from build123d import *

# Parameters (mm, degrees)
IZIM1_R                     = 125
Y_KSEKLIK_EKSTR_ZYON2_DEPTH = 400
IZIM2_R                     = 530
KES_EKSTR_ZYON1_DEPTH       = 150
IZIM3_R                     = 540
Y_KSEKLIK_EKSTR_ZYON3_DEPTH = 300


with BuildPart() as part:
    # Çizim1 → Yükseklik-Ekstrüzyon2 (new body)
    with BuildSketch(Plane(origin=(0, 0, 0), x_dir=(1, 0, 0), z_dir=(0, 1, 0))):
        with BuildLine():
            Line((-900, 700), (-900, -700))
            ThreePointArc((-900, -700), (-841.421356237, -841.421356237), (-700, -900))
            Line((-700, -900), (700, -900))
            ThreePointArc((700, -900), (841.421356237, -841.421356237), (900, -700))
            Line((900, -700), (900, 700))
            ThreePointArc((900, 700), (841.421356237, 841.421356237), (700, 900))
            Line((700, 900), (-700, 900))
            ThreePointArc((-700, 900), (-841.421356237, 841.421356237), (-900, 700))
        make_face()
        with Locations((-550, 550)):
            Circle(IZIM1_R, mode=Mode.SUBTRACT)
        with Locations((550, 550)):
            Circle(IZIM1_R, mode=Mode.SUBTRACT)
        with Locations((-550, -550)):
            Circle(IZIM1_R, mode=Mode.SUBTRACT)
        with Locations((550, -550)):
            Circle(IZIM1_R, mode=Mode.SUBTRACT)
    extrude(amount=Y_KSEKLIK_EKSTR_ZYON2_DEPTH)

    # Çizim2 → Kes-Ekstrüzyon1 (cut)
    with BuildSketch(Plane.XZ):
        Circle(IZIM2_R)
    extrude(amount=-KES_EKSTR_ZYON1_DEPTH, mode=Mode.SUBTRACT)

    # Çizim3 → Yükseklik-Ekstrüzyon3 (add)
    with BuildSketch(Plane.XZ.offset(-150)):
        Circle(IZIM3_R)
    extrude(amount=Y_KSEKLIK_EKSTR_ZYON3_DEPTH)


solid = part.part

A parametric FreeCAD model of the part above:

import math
import FreeCAD as App
import Part
import Sketcher

doc = App.newDocument("Part")
params = doc.addObject("Spreadsheet::Sheet", "Params")
for row, (alias, value) in enumerate([
    ("sketch1_diameter", "250 mm"),
    ("sketch1_radius", "200 mm"),
    ("sketch1_width", "1400 mm"),
    ("pad1_length", "400 mm"),
    ("sketch2_diameter", "1060 mm"),
    ("pocket1_length", "150 mm"),
    ("sketch3_diameter", "1080 mm"),
    ("pad2_length", "300 mm"),
], start=1):
    params.set(f"A{row}", alias)
    params.set(f"B{row}", "=" + value)
    params.setAlias(f"B{row}", alias)

body = doc.addObject("PartDesign::Body", "Body")

sketch1 = body.newObject("Sketcher::SketchObject", "Sketch")
sketch1.AttachmentSupport = (doc.getObject("XZ_Plane"), [""])
sketch1.MapMode = "FlatFace"
sketch1.addGeometry([
    Part.LineSegment(App.Vector(-900, -700, 0), App.Vector(-900, 700, 0)),
    Part.ArcOfCircle(Part.Circle(App.Vector(-700, 700, 0), App.Vector(0, 0, 1), 200), math.radians(90), math.radians(180)),
    Part.LineSegment(App.Vector(-700, 900, 0), App.Vector(700, 900, 0)),
    Part.ArcOfCircle(Part.Circle(App.Vector(700, 700, 0), App.Vector(0, 0, 1), 200), math.radians(0), math.radians(90)),
    Part.LineSegment(App.Vector(900, 700, 0), App.Vector(900, -700, 0)),
    Part.ArcOfCircle(Part.Circle(App.Vector(700, -700, 0), App.Vector(0, 0, 1), 200), math.radians(-90), math.radians(0)),
    Part.LineSegment(App.Vector(700, -900, 0), App.Vector(-700, -900, 0)),
    Part.ArcOfCircle(Part.Circle(App.Vector(-700, -700, 0), App.Vector(0, 0, 1), 200), math.radians(-180), math.radians(-90)),
    Part.Circle(App.Vector(-550, 550, 0), App.Vector(0, 0, 1), 125),
    Part.Circle(App.Vector(550, 550, 0), App.Vector(0, 0, 1), 125),
    Part.Circle(App.Vector(-550, -550, 0), App.Vector(0, 0, 1), 125),
    Part.Circle(App.Vector(550, -550, 0), App.Vector(0, 0, 1), 125),
], False)
sketch1.addConstraint([
    Sketcher.Constraint("Tangent", 0, 2, 1, 2),
    Sketcher.Constraint("Tangent", 1, 1, 2, 1),
    Sketcher.Constraint("Tangent", 2, 2, 3, 2),
    Sketcher.Constraint("Tangent", 3, 1, 4, 1),
    Sketcher.Constraint("Tangent", 4, 2, 5, 2),
    Sketcher.Constraint("Tangent", 5, 1, 6, 1),
    Sketcher.Constraint("Tangent", 6, 2, 7, 2),
    Sketcher.Constraint("Tangent", 7, 1, 0, 1),
    Sketcher.Constraint("Vertical", 0),
    Sketcher.Constraint("Horizontal", 2),
    Sketcher.Constraint("Vertical", 4),
    Sketcher.Constraint("Horizontal", 6),
    Sketcher.Constraint("Equal", 1, 3),
    Sketcher.Constraint("Equal", 3, 5),
    Sketcher.Constraint("Equal", 5, 7),
    Sketcher.Constraint("Equal", 8, 9),
    Sketcher.Constraint("Equal", 9, 10),
    Sketcher.Constraint("Equal", 10, 11),
    Sketcher.Constraint("Symmetric", 1, 3, 5, 3, -1, 1),
    Sketcher.Constraint("Symmetric", 9, 3, 10, 3, -1, 1),
    Sketcher.Constraint("Symmetric", 8, 3, 11, 3, -1, 1),
    Sketcher.Constraint("Symmetric", 8, 3, 9, 3, -2),
    Sketcher.Constraint("Equal", 6, 0),
    Sketcher.Constraint("Diameter", 8, 250.0),
    Sketcher.Constraint("Radius", 1, 200.0),
    Sketcher.Constraint("DistanceX", 2, 1, 2, 2, 1400.0),
    Sketcher.Constraint("DistanceX", 8, 3, -1, 1, 550.0),
    Sketcher.Constraint("DistanceY", -1, 1, 8, 3, 550.0),
])
sketch1.setExpression("Constraints[23]", "Params.sketch1_diameter")
sketch1.setExpression("Constraints[24]", "Params.sketch1_radius")
sketch1.setExpression("Constraints[25]", "Params.sketch1_width")
pad1 = body.newObject("PartDesign::Pad", "Pad")
pad1.Profile = sketch1
pad1.setExpression("Length", "Params.pad1_length")
pad1.Reversed = True

sketch2 = body.newObject("Sketcher::SketchObject", "Sketch001")
sketch2.AttachmentSupport = (doc.getObject("XZ_Plane"), [""])
sketch2.MapMode = "FlatFace"
sketch2.addGeometry(Part.Circle(App.Vector(0, 0, 0), App.Vector(0, 0, 1), 530), False)
sketch2.addConstraint([
    Sketcher.Constraint("Coincident", 0, 3, -1, 1),
    Sketcher.Constraint("Diameter", 0, 1060.0),
])
sketch2.setExpression("Constraints[1]", "Params.sketch2_diameter")
pocket1 = body.newObject("PartDesign::Pocket", "Pocket")
pocket1.Profile = sketch2
pocket1.setExpression("Length", "Params.pocket1_length")

sketch3 = body.newObject("Sketcher::SketchObject", "Sketch002")
sketch3.AttachmentSupport = (doc.getObject("XZ_Plane"), [""])
sketch3.MapMode = "FlatFace"
sketch3.AttachmentOffset = App.Placement(App.Vector(0, 0, -150), App.Rotation())
sketch3.addGeometry(Part.Circle(App.Vector(0, 0, 0), App.Vector(0, 0, 1), 540), False)
sketch3.addConstraint([
    Sketcher.Constraint("Coincident", 0, 3, -1, 1),
    Sketcher.Constraint("Diameter", 0, 1080.0),
])
sketch3.setExpression("Constraints[1]", "Params.sketch3_diameter")
pad2 = body.newObject("PartDesign::Pad", "Pad001")
pad2.Profile = sketch3
pad2.setExpression("Length", "Params.pad2_length")

doc.recompute()
